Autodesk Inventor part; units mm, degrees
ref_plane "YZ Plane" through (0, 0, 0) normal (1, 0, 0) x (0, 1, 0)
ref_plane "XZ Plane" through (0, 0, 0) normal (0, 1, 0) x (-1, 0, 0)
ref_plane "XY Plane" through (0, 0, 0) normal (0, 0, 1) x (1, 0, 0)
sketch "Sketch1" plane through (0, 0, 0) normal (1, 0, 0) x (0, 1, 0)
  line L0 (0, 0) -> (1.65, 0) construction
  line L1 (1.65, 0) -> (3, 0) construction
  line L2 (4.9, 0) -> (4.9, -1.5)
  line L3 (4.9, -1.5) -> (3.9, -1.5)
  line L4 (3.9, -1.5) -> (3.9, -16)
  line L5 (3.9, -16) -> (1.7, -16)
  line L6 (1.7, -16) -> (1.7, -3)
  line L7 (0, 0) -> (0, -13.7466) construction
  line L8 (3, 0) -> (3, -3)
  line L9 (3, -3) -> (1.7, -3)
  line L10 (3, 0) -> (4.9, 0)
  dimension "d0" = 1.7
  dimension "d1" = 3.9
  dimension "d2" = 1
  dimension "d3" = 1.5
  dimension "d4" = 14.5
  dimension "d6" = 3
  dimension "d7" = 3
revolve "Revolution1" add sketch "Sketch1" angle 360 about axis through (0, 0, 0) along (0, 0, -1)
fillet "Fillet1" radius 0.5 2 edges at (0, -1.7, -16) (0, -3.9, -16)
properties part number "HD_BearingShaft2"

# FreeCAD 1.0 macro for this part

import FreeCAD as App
import Part
import Sketcher
from FreeCAD import Vector


def edges_at(feature, points):
    """Names of the edges that pass closest to the given points."""
    edges = feature.Shape.Edges
    near = lambda p: min(range(len(edges)), key=lambda i: edges[i].distToShape(Part.Vertex(*p))[0])
    return sorted({f"Edge{near(p) + 1}" for p in points})

doc = App.newDocument("Part")
body = doc.addObject("PartDesign::Body", "Body")

# Sketch on YZ plane
sketch1 = doc.addObject("Sketcher::SketchObject", "Sketch")
body.addObject(sketch1)
sketch1.AttachmentSupport = (doc.YZ_Plane, [""])
sketch1.MapMode = "FlatFace"
sketch1.addGeometry([
    Part.LineSegment(Vector(4.9, -1.5, 0), Vector(4.9, 0, 0)),  # 0
    Part.LineSegment(Vector(4.9, 0, 0), Vector(3, 0, 0)),  # 1
    Part.LineSegment(Vector(3, 0, 0), Vector(3, -3, 0)),  # 2
    Part.LineSegment(Vector(3, -3, 0), Vector(1.7, -3, 0)),  # 3
    Part.LineSegment(Vector(1.7, -3, 0), Vector(1.7, -16, 0)),  # 4
    Part.LineSegment(Vector(1.7, -16, 0), Vector(3.9, -16, 0)),  # 5
    Part.LineSegment(Vector(3.9, -16, 0), Vector(3.9, -1.5, 0)),  # 6
    Part.LineSegment(Vector(3.9, -1.5, 0), Vector(4.9, -1.5, 0)),  # 7
], False)
sketch1.addConstraint([
    Sketcher.Constraint("Coincident", 0, 2, 1, 1),
    Sketcher.Constraint("Coincident", 1, 2, 2, 1),
    Sketcher.Constraint("Coincident", 2, 2, 3, 1),
    Sketcher.Constraint("Coincident", 3, 2, 4, 1),
    Sketcher.Constraint("Coincident", 4, 2, 5, 1),
    Sketcher.Constraint("Coincident", 5, 2, 6, 1),
    Sketcher.Constraint("Coincident", 6, 2, 7, 1),
    Sketcher.Constraint("Coincident", 7, 2, 0, 1),
    Sketcher.Constraint("Vertical", 0),
    Sketcher.Constraint("Horizontal", 1),
    Sketcher.Constraint("Vertical", 2),
    Sketcher.Constraint("Horizontal", 3),
    Sketcher.Constraint("Vertical", 4),
    Sketcher.Constraint("Horizontal", 5),
    Sketcher.Constraint("Vertical", 6),
    Sketcher.Constraint("Horizontal", 7),
    Sketcher.Constraint("PointOnObject", 0, 2, -1),
    Sketcher.Constraint("DistanceX", 7, 1, 7, 2, 1.0),
    Sketcher.Constraint("DistanceY", 2, 2, 2, 1, 3.0),
    Sketcher.Constraint("DistanceY", 0, 1, 0, 2, 1.5),
    Sketcher.Constraint("DistanceY", 6, 1, 6, 2, 14.5),
    Sketcher.Constraint("DistanceX", -1, 1, 1, 2, 3.0),
    Sketcher.Constraint("DistanceX", -1, 1, 3, 2, 1.7),
    Sketcher.Constraint("DistanceX", -1, 1, 5, 2, 3.9),
])
revolution = doc.addObject("PartDesign::Revolution", "Revolution")
body.addObject(revolution)
revolution.Profile = sketch1
revolution.ReferenceAxis = (sketch1, ["V_Axis"])
revolution.Angle = 360
doc.recompute()

fillet = doc.addObject("PartDesign::Fillet", "Fillet")
body.addObject(fillet)
fillet.Base = (revolution, edges_at(revolution, [(0, -1.7, -16), (0, -3.9, -16)]))
fillet.Radius = 0.5

doc.recompute()
